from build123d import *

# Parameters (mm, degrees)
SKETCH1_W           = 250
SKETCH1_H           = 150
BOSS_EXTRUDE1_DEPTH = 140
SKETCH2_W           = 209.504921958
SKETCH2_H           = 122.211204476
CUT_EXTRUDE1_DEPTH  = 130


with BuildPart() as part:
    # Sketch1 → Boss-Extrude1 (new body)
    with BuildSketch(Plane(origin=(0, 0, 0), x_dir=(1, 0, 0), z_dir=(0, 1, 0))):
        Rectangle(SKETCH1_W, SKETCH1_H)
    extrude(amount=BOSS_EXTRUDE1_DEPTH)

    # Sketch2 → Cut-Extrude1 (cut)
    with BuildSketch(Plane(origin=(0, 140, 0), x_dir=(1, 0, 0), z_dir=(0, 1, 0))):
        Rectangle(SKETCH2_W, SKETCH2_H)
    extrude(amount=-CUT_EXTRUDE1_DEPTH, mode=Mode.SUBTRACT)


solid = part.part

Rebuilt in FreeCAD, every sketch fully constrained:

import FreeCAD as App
import Part
import Sketcher
from FreeCAD import Vector
Q = App.Units.Quantity

doc = App.newDocument("Part")
body = doc.addObject("PartDesign::Body", "Body")

# Sketch on XZ plane
sketch1 = body.newObject("Sketcher::SketchObject", "Sketch")
sketch1.AttachmentSupport = (doc.getObject("XZ_Plane"), [""])
sketch1.MapMode = "FlatFace"
sketch1.addGeometry([
    Part.LineSegment(Vector(-125, -75, 0), Vector(-125, 75, 0)),
    Part.LineSegment(Vector(-125, 75, 0), Vector(125, 75, 0)),
    Part.LineSegment(Vector(125, 75, 0), Vector(125, -75, 0)),
    Part.LineSegment(Vector(125, -75, 0), Vector(-125, -75, 0)),
], False)
sketch1.addConstraint([
    Sketcher.Constraint("Coincident", 0, 2, 1, 1),
    Sketcher.Constraint("Coincident", 1, 2, 2, 1),
    Sketcher.Constraint("Coincident", 2, 2, 3, 1),
    Sketcher.Constraint("Coincident", 3, 2, 0, 1),
    Sketcher.Constraint("Vertical", 0),
    Sketcher.Constraint("Horizontal", 1),
    Sketcher.Constraint("Vertical", 2),
    Sketcher.Constraint("Horizontal", 3),
    Sketcher.Constraint("Symmetric", 0, 2, 2, 2, -1, 1),
    Sketcher.Constraint("DistanceX", 1, 1, 1, 2, Q("250 mm")),
    Sketcher.Constraint("DistanceY", 0, 1, 0, 2, Q("150 mm")),
])
pad1 = body.newObject("PartDesign::Pad", "Pad")
pad1.Profile = sketch1
pad1.Length = 140
pad1.Reversed = True

# Sketch on XZ plane
sketch2 = body.newObject("Sketcher::SketchObject", "Sketch001")
sketch2.AttachmentSupport = (doc.getObject("XZ_Plane"), [""])
sketch2.MapMode = "FlatFace"
sketch2.AttachmentOffset = App.Placement(Vector(0, 0, -140), App.Rotation())
sketch2.addGeometry([
    Part.LineSegment(Vector(-105, -61, 0), Vector(-105, 61, 0)),
    Part.LineSegment(Vector(-105, 61, 0), Vector(105, 61, 0)),
    Part.LineSegment(Vector(105, 61, 0), Vector(105, -61, 0)),
    Part.LineSegment(Vector(105, -61, 0), Vector(-105, -61, 0)),
], False)
sketch2.addConstraint([
    Sketcher.Constraint("Coincident", 0, 2, 1, 1),
    Sketcher.Constraint("Coincident", 1, 2, 2, 1),
    Sketcher.Constraint("Coincident", 2, 2, 3, 1),
    Sketcher.Constraint("Coincident", 3, 2, 0, 1),
    Sketcher.Constraint("Vertical", 0),
    Sketcher.Constraint("Horizontal", 1),
    Sketcher.Constraint("Vertical", 2),
    Sketcher.Constraint("Horizontal", 3),
    Sketcher.Constraint("Symmetric", 0, 2, 2, 2, -1, 1),
    Sketcher.Constraint("DistanceX", 1, 1, 1, 2, Q("209.504922 mm")),
    Sketcher.Constraint("DistanceY", 0, 1, 0, 2, Q("122.211204 mm")),
])
pocket1 = body.newObject("PartDesign::Pocket", "Pocket")
pocket1.Profile = sketch2
pocket1.Length = 130
pocket1.Reversed = True

doc.recompute()
